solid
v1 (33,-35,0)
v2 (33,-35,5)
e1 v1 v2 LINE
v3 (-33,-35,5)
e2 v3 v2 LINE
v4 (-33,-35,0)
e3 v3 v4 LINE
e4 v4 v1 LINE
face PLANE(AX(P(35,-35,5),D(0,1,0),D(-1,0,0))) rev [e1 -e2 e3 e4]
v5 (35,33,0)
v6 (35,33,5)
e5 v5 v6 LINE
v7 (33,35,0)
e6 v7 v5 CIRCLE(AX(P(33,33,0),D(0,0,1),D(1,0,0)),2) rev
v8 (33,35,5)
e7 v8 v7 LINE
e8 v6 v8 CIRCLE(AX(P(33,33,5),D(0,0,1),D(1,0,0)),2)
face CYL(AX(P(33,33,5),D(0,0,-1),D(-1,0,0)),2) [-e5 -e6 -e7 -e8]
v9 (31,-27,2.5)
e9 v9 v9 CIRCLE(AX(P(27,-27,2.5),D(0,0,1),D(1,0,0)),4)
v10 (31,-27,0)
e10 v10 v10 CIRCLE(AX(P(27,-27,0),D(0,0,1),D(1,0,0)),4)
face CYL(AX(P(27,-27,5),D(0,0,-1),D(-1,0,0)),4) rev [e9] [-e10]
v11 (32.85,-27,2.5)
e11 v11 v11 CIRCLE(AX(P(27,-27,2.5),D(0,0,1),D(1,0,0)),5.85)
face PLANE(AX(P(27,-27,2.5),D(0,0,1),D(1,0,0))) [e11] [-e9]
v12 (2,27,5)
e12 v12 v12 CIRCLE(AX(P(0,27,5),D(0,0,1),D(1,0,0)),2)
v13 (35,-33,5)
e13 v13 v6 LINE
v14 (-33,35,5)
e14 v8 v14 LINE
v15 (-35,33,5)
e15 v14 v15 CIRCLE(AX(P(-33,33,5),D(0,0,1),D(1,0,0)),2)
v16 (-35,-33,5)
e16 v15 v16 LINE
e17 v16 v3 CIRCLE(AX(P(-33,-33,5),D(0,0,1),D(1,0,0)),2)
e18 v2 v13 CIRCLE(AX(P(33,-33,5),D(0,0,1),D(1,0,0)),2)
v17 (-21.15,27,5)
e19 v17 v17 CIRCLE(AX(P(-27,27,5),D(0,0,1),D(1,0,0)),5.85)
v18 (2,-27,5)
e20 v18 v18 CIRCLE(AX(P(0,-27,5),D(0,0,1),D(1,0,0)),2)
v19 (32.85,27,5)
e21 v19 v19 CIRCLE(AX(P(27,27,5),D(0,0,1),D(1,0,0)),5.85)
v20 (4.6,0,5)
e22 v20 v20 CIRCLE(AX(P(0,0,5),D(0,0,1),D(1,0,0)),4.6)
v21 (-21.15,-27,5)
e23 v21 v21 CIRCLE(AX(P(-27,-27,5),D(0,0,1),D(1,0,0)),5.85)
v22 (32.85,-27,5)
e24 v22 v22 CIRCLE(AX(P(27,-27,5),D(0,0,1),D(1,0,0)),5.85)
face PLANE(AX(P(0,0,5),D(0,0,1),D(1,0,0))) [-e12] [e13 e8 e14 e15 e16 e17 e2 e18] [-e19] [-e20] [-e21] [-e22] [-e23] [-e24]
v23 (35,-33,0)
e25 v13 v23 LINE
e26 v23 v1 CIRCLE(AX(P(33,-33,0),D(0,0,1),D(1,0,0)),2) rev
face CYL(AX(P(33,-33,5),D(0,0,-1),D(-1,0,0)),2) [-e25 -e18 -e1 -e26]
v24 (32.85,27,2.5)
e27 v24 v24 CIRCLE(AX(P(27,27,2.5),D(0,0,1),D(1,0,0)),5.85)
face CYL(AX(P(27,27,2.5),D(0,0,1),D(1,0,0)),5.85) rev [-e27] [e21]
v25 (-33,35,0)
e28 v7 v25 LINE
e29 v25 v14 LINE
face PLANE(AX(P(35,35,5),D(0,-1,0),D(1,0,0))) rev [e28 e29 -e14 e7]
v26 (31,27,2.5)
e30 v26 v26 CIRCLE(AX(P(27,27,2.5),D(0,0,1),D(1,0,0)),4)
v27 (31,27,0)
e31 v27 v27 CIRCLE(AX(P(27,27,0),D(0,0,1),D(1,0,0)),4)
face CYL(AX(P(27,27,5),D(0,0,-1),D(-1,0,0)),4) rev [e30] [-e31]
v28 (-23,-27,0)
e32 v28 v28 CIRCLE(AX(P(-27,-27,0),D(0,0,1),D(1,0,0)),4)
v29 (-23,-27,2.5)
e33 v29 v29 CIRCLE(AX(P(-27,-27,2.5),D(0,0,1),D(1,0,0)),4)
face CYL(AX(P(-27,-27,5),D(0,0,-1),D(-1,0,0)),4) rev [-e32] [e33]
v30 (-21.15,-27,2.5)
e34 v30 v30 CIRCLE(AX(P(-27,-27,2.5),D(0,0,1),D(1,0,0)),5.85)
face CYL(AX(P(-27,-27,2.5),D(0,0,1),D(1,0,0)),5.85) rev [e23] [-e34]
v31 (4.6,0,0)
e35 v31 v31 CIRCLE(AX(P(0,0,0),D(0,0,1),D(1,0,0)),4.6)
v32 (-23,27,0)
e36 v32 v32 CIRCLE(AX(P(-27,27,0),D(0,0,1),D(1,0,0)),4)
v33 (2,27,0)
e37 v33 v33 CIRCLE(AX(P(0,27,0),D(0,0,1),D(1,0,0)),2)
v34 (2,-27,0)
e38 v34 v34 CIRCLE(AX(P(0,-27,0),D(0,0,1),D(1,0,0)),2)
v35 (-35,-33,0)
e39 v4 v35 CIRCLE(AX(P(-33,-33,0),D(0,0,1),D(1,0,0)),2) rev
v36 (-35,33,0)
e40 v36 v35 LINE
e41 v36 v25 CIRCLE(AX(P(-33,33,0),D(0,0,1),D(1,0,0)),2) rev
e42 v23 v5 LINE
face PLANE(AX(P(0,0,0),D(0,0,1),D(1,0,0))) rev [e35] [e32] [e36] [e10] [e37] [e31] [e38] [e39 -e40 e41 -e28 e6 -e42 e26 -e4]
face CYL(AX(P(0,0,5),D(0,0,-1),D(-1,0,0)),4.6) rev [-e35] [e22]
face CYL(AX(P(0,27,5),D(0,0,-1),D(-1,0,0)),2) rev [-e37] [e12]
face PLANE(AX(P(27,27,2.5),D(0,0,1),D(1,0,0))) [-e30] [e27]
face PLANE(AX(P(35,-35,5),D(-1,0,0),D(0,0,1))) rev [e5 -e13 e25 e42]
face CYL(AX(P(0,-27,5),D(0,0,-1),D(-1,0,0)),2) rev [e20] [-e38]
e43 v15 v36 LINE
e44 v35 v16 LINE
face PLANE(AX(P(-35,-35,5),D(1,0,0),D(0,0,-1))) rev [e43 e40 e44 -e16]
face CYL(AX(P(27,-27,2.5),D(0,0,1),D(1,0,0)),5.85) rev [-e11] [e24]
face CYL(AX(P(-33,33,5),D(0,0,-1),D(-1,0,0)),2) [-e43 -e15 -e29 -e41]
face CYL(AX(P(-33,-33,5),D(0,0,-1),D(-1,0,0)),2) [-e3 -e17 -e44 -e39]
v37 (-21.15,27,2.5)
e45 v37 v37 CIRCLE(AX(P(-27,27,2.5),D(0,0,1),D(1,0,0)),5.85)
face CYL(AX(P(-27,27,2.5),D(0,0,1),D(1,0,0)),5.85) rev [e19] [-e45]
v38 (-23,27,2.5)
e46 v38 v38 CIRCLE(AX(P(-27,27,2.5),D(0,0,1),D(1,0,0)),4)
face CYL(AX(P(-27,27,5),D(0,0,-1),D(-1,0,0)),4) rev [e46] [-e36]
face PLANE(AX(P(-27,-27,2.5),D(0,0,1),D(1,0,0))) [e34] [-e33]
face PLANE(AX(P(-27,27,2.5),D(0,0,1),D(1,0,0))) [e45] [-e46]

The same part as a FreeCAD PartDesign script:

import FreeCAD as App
import Part
import Sketcher

V = App.Vector


def edges_at(feature, points):
    """Names of the edges that pass closest to the given points."""
    edges = feature.Shape.Edges
    near = lambda p: min(range(len(edges)), key=lambda i: edges[i].distToShape(Part.Vertex(*p))[0])
    return sorted({f"Edge{near(p) + 1}" for p in points})


def add_polygon(sketch, points):
    """Adds a closed chain of lines whose ends are joined by coincident constraints."""
    first, n = sketch.GeometryCount, len(points)
    for a, b in zip(points, points[1:] + points[:1]):
        sketch.addGeometry(Part.LineSegment(App.Vector(*a, 0), App.Vector(*b, 0)), False)
    for i in range(n):
        sketch.addConstraint(Sketcher.Constraint("Coincident", first + i, 2, first + (i + 1) % n, 1))

doc = App.newDocument("Part")
body = doc.addObject("PartDesign::Body", "Body")

sketch1 = body.newObject("Sketcher::SketchObject", "Sketch")
sketch1.AttachmentSupport = (doc.getObject("XY_Plane"), [""])
sketch1.MapMode = "FlatFace"
add_polygon(sketch1, [(-35, 35), (-35, -35), (35, -35), (35, 35)])
sketch1.addGeometry(Part.Circle(V(-27, -27, 0), V(0, 0, 1), 4), False)
sketch1.addGeometry(Part.Circle(V(0, -27, 0), V(0, 0, 1), 2), False)
sketch1.addGeometry(Part.Circle(V(27, -27, 0), V(0, 0, 1), 4), False)
sketch1.addGeometry(Part.Circle(V(-27, 27, 0), V(0, 0, 1), 4), False)
sketch1.addGeometry(Part.Circle(V(0, 0, 0), V(0, 0, 1), 4.6), False)
sketch1.addGeometry(Part.Circle(V(0, 27, 0), V(0, 0, 1), 2), False)
sketch1.addGeometry(Part.Circle(V(27, 27, 0), V(0, 0, 1), 4), False)
sketch1.addConstraint([
    Sketcher.Constraint("Vertical", 0),
    Sketcher.Constraint("Horizontal", 1),
    Sketcher.Constraint("Vertical", 2),
    Sketcher.Constraint("Horizontal", 3),
    Sketcher.Constraint("Coincident", 8, 3, -1, 1),
    Sketcher.Constraint("Equal", 4, 6),
    Sketcher.Constraint("Equal", 6, 7),
    Sketcher.Constraint("Equal", 5, 9),
    Sketcher.Constraint("Equal", 7, 10),
    Sketcher.Constraint("Symmetric", 6, 3, 7, 3, -1, 1),
    Sketcher.Constraint("Symmetric", 5, 3, 9, 3, -1, 1),
    Sketcher.Constraint("Symmetric", 4, 3, 10, 3, -1, 1),
    Sketcher.Constraint("Symmetric", 0, 2, 2, 2, -1, 1),
    Sketcher.Constraint("Symmetric", 4, 3, 6, 3, -2),
    Sketcher.Constraint("PointOnObject", 5, 3, -2),
    Sketcher.Constraint("Horizontal", 4, 3, 5, 3),
    Sketcher.Constraint("Equal", 3, 0),
    Sketcher.Constraint("Diameter", 4, 8.0),
    Sketcher.Constraint("Diameter", 5, 4.0),
    Sketcher.Constraint("Diameter", 8, 9.2),
    Sketcher.Constraint("DistanceX", 1, 1, 1, 2, 70.0),
    Sketcher.Constraint("DistanceX", 4, 3, -1, 1, 27.0),
    Sketcher.Constraint("DistanceY", 4, 3, -1, 1, 27.0),
])
pad1 = body.newObject("PartDesign::Pad", "Pad")
pad1.Profile = sketch1
pad1.Length = 5
doc.recompute()

fillet = body.newObject("PartDesign::Fillet", "Fillet")
fillet.Base = (pad1, edges_at(pad1, [(-35, 35, 2.5), (35, 35, 2.5), (35, -35, 2.5)]))
fillet.Radius = 2
doc.recompute()

fillet2 = body.newObject("PartDesign::Fillet", "Fillet001")
fillet2.Base = (fillet, edges_at(fillet, [(-35, -35, 2.5)]))
fillet2.Radius = 2

sketch2 = body.newObject("Sketcher::SketchObject", "Sketch001")
sketch2.AttachmentSupport = (doc.getObject("XY_Plane"), [""])
sketch2.MapMode = "FlatFace"
sketch2.AttachmentOffset = App.Placement(V(0, 0, 5), App.Rotation())
sketch2.addGeometry([
    Part.Circle(V(-27, 27, 0), V(0, 0, 1), 6),
    Part.Circle(V(27, 27, 0), V(0, 0, 1), 6),
    Part.Circle(V(27, -27, 0), V(0, 0, 1), 6),
    Part.Circle(V(-27, -27, 0), V(0, 0, 1), 6),
], False)
sketch2.addConstraint([
    Sketcher.Constraint("Equal", 0, 1),
    Sketcher.Constraint("Equal", 1, 2),
    Sketcher.Constraint("Equal", 2, 3),
    Sketcher.Constraint("Symmetric", 0, 3, 2, 3, -1, 1),
    Sketcher.Constraint("Symmetric", 1, 3, 3, 3, -1, 1),
    Sketcher.Constraint("Symmetric", 0, 3, 1, 3, -2),
    Sketcher.Constraint("Diameter", 0, 11.7),
    Sketcher.Constraint("DistanceX", 0, 3, -1, 1, 27.0),
    Sketcher.Constraint("DistanceY", -1, 1, 0, 3, 27.0),
])
pocket1 = body.newObject("PartDesign::Pocket", "Pocket")
pocket1.Profile = sketch2
pocket1.Length = 2.5

doc.recompute()
